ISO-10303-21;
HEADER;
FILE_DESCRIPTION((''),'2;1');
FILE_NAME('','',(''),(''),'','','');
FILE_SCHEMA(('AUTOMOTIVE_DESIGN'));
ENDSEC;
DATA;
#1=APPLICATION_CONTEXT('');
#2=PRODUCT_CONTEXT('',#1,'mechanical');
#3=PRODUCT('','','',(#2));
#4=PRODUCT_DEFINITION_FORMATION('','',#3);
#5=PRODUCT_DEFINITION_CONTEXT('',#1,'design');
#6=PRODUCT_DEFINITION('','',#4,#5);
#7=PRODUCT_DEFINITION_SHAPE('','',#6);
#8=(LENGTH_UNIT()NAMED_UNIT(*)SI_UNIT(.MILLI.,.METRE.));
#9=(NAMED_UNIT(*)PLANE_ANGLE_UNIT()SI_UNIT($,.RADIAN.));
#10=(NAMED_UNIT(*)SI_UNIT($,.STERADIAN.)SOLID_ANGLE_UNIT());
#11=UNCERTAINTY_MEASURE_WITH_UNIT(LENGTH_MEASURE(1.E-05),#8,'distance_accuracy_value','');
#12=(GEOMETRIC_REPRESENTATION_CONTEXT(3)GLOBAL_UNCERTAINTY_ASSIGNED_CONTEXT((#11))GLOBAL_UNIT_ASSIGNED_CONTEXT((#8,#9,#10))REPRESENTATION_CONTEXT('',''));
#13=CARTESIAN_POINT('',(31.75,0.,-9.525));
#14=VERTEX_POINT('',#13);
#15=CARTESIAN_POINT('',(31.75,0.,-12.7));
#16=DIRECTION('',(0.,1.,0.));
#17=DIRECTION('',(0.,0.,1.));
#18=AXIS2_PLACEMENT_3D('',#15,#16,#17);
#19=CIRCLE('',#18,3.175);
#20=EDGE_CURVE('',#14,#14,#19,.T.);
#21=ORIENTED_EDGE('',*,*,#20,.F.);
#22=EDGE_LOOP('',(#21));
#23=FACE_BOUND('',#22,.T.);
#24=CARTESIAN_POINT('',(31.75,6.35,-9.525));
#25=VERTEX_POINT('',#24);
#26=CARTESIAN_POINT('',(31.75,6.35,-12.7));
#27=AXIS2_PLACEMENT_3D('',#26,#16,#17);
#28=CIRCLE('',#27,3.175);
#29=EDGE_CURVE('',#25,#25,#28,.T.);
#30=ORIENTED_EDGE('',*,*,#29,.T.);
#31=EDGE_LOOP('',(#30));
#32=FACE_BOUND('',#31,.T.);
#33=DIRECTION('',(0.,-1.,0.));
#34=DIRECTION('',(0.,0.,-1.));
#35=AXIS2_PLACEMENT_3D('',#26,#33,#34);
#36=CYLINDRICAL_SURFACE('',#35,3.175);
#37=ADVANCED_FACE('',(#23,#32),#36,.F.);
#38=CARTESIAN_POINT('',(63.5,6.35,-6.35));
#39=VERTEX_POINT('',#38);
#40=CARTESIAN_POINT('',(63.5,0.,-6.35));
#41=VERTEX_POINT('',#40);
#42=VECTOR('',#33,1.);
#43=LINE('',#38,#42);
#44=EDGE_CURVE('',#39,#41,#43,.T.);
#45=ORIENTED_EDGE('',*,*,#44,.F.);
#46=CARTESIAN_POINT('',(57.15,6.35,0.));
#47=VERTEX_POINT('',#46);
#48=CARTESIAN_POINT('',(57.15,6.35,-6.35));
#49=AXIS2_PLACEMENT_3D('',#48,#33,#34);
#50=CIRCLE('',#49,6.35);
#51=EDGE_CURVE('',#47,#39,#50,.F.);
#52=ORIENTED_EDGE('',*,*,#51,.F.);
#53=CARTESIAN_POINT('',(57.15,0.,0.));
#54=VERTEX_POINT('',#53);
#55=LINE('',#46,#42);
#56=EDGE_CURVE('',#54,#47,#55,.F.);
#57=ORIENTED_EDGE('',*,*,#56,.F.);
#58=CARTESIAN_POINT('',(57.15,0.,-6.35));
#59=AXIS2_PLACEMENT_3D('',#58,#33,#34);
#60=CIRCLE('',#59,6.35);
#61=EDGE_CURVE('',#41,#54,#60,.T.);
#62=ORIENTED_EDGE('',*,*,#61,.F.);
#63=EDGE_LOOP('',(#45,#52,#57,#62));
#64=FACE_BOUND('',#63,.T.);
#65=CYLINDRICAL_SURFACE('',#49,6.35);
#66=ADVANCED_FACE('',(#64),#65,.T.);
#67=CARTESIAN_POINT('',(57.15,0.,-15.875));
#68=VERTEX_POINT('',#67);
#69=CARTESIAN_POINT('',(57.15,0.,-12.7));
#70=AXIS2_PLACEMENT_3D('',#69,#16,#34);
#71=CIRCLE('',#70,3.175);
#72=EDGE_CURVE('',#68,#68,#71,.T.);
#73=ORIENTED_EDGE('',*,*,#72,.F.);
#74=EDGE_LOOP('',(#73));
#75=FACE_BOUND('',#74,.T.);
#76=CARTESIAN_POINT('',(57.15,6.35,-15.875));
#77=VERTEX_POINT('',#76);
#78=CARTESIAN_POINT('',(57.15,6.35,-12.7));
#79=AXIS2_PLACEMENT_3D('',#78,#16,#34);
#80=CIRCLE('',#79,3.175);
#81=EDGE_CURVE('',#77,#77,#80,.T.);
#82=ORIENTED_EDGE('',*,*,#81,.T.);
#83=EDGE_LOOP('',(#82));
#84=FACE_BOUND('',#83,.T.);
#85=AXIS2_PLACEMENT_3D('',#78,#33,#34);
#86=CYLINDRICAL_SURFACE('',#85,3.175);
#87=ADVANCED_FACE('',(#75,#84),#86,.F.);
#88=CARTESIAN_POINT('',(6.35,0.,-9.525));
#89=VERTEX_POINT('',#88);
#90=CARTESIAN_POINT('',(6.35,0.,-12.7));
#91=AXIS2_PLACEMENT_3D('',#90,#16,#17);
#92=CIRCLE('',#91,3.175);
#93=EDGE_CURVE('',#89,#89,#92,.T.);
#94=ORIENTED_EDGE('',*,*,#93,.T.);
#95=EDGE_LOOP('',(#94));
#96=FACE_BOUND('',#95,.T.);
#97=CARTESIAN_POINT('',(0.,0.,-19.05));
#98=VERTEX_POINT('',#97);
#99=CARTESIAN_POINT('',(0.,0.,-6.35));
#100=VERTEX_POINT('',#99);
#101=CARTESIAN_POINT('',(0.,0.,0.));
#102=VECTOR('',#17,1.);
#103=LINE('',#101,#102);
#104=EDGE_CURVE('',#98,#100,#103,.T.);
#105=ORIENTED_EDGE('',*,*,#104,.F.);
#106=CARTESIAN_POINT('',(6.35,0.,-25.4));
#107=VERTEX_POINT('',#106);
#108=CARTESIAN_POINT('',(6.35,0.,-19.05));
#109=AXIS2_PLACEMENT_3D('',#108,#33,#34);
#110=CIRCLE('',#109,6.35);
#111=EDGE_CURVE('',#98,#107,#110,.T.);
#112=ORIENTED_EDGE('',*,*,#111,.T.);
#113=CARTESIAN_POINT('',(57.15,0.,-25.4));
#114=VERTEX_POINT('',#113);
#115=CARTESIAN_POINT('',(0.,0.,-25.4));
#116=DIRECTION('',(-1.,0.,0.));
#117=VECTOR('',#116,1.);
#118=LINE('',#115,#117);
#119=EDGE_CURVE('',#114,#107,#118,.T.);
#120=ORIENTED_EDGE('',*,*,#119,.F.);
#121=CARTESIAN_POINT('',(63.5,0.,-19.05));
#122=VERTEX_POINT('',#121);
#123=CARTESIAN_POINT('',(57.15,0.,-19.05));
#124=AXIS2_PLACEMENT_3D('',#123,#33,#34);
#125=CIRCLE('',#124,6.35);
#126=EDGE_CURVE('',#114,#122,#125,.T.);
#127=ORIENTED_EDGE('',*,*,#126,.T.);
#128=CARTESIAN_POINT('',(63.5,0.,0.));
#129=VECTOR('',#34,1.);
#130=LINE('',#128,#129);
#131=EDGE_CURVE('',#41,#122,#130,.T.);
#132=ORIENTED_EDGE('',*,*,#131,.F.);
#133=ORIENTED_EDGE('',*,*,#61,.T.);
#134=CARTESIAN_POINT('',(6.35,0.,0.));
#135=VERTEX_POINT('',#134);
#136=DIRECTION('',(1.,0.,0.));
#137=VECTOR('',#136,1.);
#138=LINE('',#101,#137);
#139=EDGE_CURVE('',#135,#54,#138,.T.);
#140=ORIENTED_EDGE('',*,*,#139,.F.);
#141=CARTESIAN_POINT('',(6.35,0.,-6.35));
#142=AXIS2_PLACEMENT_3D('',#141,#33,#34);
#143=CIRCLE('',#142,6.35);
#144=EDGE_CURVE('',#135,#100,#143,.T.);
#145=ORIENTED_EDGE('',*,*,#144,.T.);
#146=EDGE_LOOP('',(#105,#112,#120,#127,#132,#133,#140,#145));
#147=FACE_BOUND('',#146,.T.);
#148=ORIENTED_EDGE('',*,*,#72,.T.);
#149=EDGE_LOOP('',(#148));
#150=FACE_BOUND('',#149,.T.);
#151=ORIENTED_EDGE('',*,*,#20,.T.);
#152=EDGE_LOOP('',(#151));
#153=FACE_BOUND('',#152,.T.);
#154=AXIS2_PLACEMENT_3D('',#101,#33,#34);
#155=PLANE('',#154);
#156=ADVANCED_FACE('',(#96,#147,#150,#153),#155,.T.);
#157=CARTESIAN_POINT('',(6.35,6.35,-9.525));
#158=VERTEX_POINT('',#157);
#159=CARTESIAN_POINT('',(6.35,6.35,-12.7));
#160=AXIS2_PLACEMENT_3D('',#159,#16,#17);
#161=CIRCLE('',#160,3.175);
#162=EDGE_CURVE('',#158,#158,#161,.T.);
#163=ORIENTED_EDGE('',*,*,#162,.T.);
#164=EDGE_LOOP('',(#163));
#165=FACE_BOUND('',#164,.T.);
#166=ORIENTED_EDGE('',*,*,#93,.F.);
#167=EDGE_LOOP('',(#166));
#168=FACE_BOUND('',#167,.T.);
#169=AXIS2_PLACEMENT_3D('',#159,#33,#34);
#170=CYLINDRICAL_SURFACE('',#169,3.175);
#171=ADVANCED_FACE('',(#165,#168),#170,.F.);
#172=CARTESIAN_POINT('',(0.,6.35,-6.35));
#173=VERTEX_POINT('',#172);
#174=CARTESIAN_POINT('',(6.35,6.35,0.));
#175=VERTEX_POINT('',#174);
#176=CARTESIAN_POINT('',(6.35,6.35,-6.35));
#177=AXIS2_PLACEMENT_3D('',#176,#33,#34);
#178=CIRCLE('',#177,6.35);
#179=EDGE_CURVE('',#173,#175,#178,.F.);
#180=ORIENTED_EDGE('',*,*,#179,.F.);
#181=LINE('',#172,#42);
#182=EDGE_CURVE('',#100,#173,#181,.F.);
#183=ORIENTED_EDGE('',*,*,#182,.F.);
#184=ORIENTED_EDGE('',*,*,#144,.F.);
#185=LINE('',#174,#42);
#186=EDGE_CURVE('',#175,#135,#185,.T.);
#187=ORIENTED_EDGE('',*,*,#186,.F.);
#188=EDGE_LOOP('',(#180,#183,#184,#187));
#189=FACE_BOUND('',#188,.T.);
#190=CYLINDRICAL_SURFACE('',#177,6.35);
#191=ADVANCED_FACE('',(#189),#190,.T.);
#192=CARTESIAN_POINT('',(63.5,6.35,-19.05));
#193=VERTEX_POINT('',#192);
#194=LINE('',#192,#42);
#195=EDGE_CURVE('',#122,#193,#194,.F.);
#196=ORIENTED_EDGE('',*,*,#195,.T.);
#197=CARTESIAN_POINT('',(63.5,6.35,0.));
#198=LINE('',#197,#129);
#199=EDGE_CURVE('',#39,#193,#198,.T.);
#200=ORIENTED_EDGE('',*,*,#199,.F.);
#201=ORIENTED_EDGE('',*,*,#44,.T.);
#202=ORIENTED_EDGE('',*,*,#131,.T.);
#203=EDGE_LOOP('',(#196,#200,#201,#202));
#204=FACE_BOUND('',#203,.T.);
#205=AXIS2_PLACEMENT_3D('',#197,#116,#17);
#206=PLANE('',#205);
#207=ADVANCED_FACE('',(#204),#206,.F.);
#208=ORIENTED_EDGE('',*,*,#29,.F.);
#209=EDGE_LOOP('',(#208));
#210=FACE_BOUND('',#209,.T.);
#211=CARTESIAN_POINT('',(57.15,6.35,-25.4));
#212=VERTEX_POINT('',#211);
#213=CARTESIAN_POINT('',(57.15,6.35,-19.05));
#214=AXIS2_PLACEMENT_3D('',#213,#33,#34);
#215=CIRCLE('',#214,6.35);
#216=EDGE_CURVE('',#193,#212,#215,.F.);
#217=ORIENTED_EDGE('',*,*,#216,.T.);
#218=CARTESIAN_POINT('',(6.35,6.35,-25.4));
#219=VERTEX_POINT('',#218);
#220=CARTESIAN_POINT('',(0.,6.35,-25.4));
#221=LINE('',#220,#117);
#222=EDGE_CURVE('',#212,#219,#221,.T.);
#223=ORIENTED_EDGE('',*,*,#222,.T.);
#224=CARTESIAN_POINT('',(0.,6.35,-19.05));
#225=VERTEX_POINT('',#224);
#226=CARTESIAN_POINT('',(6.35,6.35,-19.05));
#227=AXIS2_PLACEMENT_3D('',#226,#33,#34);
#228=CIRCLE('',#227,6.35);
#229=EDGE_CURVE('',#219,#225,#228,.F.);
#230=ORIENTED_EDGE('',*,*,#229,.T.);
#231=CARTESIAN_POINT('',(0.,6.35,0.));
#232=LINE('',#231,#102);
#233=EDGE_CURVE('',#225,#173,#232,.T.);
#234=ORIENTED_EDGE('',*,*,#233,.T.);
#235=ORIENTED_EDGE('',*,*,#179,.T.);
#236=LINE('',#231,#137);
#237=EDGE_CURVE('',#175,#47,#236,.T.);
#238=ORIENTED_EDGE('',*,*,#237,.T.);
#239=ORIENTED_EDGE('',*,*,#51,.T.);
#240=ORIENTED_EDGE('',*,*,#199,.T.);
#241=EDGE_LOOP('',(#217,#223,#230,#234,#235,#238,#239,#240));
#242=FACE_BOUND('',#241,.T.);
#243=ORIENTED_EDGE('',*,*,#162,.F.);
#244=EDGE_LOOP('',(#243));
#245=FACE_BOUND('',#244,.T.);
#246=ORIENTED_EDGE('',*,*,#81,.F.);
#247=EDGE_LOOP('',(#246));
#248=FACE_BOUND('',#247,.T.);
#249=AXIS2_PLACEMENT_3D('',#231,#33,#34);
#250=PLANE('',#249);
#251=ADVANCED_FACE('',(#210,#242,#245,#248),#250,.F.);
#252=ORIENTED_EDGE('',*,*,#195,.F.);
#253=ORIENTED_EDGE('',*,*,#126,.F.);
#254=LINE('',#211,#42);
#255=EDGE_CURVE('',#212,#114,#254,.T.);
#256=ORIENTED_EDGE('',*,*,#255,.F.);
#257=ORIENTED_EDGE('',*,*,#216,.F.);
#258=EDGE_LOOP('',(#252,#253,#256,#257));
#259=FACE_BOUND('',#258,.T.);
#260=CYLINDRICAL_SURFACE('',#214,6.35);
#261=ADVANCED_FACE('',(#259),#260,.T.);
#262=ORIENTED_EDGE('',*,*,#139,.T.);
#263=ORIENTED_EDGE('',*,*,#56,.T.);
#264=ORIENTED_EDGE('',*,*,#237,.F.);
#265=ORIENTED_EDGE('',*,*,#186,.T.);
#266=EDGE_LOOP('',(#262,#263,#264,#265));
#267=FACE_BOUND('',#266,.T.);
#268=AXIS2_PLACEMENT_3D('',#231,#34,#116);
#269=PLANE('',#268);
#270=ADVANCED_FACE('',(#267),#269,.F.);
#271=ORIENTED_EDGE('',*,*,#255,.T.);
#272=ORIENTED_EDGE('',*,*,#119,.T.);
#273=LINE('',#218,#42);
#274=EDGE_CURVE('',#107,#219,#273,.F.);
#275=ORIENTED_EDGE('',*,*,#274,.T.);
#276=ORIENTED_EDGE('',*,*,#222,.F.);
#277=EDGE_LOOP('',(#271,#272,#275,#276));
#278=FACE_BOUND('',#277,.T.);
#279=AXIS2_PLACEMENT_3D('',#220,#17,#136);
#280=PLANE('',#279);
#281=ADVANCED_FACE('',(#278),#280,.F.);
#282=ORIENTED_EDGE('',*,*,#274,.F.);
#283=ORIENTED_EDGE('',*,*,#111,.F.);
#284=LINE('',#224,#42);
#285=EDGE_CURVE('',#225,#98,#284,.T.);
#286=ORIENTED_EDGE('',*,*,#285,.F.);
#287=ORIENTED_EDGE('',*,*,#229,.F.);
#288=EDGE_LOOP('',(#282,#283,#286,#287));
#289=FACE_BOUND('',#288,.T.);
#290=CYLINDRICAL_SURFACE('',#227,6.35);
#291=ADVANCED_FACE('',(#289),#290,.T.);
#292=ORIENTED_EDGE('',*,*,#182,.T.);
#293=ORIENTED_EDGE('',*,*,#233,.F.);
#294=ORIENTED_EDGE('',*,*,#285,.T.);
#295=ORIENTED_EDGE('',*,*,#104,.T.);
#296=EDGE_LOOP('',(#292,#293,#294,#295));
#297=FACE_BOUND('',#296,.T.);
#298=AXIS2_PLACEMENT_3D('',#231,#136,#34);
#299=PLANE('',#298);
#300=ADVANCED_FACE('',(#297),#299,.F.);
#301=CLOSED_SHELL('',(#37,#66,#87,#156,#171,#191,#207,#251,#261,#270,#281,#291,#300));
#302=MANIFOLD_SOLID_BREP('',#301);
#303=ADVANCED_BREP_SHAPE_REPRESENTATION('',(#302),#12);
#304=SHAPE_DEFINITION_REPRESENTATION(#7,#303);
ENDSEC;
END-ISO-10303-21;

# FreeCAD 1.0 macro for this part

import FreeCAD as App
import Part
import Sketcher
from FreeCAD import Vector
Q = App.Units.Quantity


def edges_at(feature, points):
    """Names of the edges that pass closest to the given points."""
    edges = feature.Shape.Edges
    near = lambda p: min(range(len(edges)), key=lambda i: edges[i].distToShape(Part.Vertex(*p))[0])
    return sorted({f"Edge{near(p) + 1}" for p in points})

doc = App.newDocument("Part")
body = doc.addObject("PartDesign::Body", "Body")

sketch1 = body.newObject("Sketcher::SketchObject", "Sketch")
sketch1.AttachmentSupport = (doc.getObject("XZ_Plane"), [""])
sketch1.MapMode = "FlatFace"
sketch1.addGeometry([
    Part.LineSegment(Vector(0, -25.4, 0), Vector(0, 0, 0)),
    Part.LineSegment(Vector(0, 0, 0), Vector(63.5, 0, 0)),
    Part.LineSegment(Vector(63.5, 0, 0), Vector(63.5, -25.4, 0)),
    Part.LineSegment(Vector(63.5, -25.4, 0), Vector(0, -25.4, 0)),
    Part.Circle(Vector(6.3, -12.7, 0), Vector(0, 0, 1), 3.2),
    Part.Circle(Vector(31.8, -12.7, 0), Vector(0, 0, 1), 3.2),
    Part.Circle(Vector(57.1, -12.7, 0), Vector(0, 0, 1), 3.2),
], False)
sketch1.addConstraint([
    Sketcher.Constraint("Coincident", 0, 2, 1, 1),
    Sketcher.Constraint("Coincident", 1, 2, 2, 1),
    Sketcher.Constraint("Coincident", 2, 2, 3, 1),
    Sketcher.Constraint("Coincident", 3, 2, 0, 1),
    Sketcher.Constraint("Vertical", 0),
    Sketcher.Constraint("Horizontal", 1),
    Sketcher.Constraint("Vertical", 2),
    Sketcher.Constraint("Horizontal", 3),
    Sketcher.Constraint("Coincident", 0, 2, -1, 1),
    Sketcher.Constraint("Equal", 4, 5),
    Sketcher.Constraint("Equal", 5, 6),
    Sketcher.Constraint("Horizontal", 4, 3, 5, 3),
    Sketcher.Constraint("Horizontal", 5, 3, 6, 3),
    Sketcher.Constraint("Diameter", 4, Q("0.25 in")),
    Sketcher.Constraint("DistanceY", 0, 1, 0, 2, Q("1 in")),
    Sketcher.Constraint("DistanceX", 1, 1, 1, 2, Q("2.5 in")),
    Sketcher.Constraint("DistanceX", 4, 3, 5, 3, Q("1 in")),
    Sketcher.Constraint("DistanceX", 5, 3, 6, 3, Q("1 in")),
    Sketcher.Constraint("DistanceY", 4, 3, -1, 1, Q("0.5 in")),
    Sketcher.Constraint("DistanceX", -1, 1, 4, 3, Q("0.25 in")),
])
pad1 = body.newObject("PartDesign::Pad", "Pad")
pad1.Profile = sketch1
pad1.Length = Q("0.25 in")
pad1.Reversed = True
doc.recompute()

fillet = body.newObject("PartDesign::Fillet", "Fillet")
fillet.Base = (pad1, edges_at(pad1, [
    (0, 3.175, -25.4),
    (63.5, 3.175, -25.4),
    (63.5, 3.175, 0),
    (0, 3.175, 0),
]))
fillet.Radius = Q("0.25 in")

doc.recompute()
